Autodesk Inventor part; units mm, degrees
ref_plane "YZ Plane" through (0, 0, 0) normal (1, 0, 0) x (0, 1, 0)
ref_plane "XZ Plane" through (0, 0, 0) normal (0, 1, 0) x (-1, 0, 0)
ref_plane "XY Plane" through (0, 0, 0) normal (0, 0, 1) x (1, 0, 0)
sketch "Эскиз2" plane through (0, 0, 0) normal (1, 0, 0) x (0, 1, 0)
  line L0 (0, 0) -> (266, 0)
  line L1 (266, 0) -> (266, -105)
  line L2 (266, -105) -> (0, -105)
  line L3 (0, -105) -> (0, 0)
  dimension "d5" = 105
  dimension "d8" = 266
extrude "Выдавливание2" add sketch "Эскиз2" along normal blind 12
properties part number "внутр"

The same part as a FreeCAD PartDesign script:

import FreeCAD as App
import Part
import Sketcher

V = App.Vector
Q = App.Units.Quantity

doc = App.newDocument("Part")
body = doc.addObject("PartDesign::Body", "Body")

sketch1 = body.newObject("Sketcher::SketchObject", "Sketch")
sketch1.AttachmentSupport = (doc.getObject("YZ_Plane"), [""])
sketch1.MapMode = "FlatFace"
sketch1.addGeometry(Part.LineSegment(V(266, 0, 0), V(0, 0, 0)), False)
sketch1.addGeometry(Part.LineSegment(V(0, 0, 0), V(0, -105, 0)), False)
sketch1.addGeometry(Part.LineSegment(V(0, -105, 0), V(266, -105, 0)), False)
sketch1.addGeometry(Part.LineSegment(V(266, -105, 0), V(266, 0, 0)), False)
sketch1.addConstraint(Sketcher.Constraint("Coincident", 0, 2, 1, 1))
sketch1.addConstraint(Sketcher.Constraint("Coincident", 1, 2, 2, 1))
sketch1.addConstraint(Sketcher.Constraint("Coincident", 2, 2, 3, 1))
sketch1.addConstraint(Sketcher.Constraint("Coincident", 3, 2, 0, 1))
sketch1.addConstraint(Sketcher.Constraint("Horizontal", 0))
sketch1.addConstraint(Sketcher.Constraint("Vertical", 1))
sketch1.addConstraint(Sketcher.Constraint("Horizontal", 2))
sketch1.addConstraint(Sketcher.Constraint("Vertical", 3))
sketch1.addConstraint(Sketcher.Constraint("Coincident", 0, 2, -1, 1))
sketch1.addConstraint(Sketcher.Constraint("DistanceX", 0, 2, 0, 1, Q("266 mm")))
sketch1.addConstraint(Sketcher.Constraint("DistanceY", 1, 2, 1, 1, Q("105 mm")))
pad1 = body.newObject("PartDesign::Pad", "Pad")
pad1.Profile = sketch1
pad1.Length = 12

doc.recompute()
